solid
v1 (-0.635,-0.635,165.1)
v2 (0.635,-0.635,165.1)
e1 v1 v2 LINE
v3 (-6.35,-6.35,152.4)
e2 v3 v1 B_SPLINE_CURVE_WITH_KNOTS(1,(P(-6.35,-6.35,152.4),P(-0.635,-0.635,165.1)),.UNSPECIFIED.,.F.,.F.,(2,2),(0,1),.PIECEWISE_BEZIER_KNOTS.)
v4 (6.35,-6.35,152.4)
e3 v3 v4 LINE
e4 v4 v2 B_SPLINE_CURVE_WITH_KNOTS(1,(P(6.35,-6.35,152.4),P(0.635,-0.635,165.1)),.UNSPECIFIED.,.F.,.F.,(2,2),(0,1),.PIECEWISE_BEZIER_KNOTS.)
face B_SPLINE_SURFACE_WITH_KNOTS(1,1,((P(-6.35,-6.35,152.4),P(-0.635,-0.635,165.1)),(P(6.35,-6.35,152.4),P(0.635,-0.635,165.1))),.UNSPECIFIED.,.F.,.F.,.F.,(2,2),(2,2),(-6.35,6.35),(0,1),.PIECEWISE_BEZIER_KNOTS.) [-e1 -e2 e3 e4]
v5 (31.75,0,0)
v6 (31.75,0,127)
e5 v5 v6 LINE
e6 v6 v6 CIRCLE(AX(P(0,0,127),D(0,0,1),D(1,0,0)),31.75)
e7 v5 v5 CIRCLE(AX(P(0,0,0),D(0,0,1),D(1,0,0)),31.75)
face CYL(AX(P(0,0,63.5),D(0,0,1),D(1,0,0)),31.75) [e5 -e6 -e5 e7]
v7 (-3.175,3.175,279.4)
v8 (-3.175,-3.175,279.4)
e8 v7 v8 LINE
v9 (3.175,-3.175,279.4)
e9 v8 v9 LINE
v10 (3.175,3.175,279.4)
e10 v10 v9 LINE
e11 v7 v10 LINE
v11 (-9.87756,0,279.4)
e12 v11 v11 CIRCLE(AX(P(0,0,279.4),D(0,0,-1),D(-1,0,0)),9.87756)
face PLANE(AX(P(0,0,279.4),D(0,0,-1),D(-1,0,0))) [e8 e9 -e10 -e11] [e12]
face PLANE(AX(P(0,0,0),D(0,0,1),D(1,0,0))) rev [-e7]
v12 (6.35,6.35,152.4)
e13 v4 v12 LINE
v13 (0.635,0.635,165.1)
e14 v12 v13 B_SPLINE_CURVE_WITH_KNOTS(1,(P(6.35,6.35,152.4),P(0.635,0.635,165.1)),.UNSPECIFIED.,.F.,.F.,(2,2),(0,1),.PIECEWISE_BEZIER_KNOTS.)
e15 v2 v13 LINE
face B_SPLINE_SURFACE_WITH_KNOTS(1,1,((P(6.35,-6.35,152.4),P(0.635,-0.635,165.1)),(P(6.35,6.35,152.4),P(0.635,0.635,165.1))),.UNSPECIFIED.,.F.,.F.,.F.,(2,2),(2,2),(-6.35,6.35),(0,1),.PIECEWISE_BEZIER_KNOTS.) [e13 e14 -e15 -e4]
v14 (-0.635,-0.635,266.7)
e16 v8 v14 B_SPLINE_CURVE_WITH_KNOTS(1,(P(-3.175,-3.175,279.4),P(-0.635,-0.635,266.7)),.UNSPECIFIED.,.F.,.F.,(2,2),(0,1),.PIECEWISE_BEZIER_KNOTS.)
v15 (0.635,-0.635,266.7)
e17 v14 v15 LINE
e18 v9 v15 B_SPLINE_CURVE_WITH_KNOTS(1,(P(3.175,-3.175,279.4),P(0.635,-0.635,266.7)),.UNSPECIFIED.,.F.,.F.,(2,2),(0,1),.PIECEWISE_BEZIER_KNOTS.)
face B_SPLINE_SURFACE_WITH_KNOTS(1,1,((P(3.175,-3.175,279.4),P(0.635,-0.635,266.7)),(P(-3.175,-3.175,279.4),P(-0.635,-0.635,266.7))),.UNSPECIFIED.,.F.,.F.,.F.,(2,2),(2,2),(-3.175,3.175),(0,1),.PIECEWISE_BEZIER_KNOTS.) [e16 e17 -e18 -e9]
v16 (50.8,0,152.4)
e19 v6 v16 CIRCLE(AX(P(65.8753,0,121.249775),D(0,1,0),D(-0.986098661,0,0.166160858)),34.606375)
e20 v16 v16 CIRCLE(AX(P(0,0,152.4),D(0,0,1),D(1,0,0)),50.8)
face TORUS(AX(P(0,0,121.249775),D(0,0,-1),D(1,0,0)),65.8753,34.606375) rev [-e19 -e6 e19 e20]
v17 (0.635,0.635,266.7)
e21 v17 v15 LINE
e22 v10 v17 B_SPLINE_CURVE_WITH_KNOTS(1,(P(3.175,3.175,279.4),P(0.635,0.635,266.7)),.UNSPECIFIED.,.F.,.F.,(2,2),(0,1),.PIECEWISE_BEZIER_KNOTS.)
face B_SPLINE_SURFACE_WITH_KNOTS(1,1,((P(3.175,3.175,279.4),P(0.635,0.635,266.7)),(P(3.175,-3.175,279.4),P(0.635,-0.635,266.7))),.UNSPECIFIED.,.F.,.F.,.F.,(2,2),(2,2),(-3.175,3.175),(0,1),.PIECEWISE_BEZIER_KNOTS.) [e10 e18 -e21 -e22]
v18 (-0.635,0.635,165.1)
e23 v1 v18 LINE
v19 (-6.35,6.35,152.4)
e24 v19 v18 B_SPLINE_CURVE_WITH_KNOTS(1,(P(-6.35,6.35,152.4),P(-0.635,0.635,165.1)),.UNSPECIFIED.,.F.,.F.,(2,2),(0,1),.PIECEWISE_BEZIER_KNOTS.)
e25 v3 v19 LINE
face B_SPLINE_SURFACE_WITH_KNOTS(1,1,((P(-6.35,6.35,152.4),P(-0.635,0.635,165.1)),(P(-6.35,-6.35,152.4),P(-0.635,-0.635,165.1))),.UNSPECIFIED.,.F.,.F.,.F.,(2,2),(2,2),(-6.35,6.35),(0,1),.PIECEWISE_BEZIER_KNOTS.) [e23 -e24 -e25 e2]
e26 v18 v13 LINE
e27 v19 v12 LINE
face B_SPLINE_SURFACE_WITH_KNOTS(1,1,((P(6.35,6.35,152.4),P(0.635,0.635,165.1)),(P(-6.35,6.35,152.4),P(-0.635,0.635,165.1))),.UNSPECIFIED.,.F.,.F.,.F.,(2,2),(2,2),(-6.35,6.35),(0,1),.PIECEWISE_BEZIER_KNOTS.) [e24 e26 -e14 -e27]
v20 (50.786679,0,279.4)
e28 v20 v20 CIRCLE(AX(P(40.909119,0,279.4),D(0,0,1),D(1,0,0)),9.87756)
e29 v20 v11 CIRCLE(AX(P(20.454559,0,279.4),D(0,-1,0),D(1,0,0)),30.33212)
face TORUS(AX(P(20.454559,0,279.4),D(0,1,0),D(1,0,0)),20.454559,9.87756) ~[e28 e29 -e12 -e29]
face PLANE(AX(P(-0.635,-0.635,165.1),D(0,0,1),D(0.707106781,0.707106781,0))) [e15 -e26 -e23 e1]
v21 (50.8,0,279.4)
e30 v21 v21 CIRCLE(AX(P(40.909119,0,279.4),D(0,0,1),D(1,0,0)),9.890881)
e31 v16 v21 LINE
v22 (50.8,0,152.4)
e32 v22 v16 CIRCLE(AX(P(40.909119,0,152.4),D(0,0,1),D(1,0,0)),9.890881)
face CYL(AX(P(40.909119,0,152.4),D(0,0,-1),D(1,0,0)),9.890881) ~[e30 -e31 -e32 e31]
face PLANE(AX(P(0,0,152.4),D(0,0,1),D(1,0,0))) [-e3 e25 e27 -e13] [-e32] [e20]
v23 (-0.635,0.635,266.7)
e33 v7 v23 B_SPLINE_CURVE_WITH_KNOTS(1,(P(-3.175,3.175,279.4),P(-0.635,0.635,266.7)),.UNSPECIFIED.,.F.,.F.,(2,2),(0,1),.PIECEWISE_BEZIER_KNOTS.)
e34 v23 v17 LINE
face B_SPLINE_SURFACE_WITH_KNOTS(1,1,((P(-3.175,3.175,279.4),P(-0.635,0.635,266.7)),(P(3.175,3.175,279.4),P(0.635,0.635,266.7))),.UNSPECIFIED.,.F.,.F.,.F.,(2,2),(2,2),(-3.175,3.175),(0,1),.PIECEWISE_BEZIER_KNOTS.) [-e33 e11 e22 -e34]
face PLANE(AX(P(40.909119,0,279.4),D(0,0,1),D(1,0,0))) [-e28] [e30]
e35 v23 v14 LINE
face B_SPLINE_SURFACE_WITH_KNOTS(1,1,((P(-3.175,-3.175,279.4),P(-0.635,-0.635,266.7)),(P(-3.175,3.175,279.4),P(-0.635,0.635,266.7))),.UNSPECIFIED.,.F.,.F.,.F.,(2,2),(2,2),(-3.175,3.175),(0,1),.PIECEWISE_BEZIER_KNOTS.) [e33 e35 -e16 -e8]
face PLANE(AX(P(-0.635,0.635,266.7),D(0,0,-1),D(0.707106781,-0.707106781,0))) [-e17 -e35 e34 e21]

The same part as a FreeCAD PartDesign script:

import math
import FreeCAD as App
import Part
import Sketcher

V = App.Vector
Q = App.Units.Quantity

doc = App.newDocument("Part")
body = doc.addObject("PartDesign::Body", "Body")

# Sketch on XZ plane
sketch1 = body.newObject("Sketcher::SketchObject", "Sketch")
sketch1.AttachmentSupport = (doc.getObject("XZ_Plane"), [""])
sketch1.MapMode = "FlatFace"
sketch1.addGeometry(Part.LineSegment(V(0, 152.4, 0), V(0, 0, 0)), False)
sketch1.addGeometry(Part.LineSegment(V(0, 0, 0), V(31.75, 0, 0)), False)
sketch1.addGeometry(Part.LineSegment(V(31.75, 0, 0), V(31.75, 127, 0)), False)
sketch1.addGeometry(Part.ArcOfCircle(Part.Circle(V(65.8753, 121.249775, 0), V(0, 0, 1), 34.606375), math.radians(115.824882), math.radians(170.435322)), False)
sketch1.addGeometry(Part.LineSegment(V(50.8, 152.4, 0), V(0, 152.4, 0)), False)
sketch1.addConstraint(Sketcher.Constraint("Coincident", 0, 2, 1, 1))
sketch1.addConstraint(Sketcher.Constraint("Coincident", 1, 2, 2, 1))
sketch1.addConstraint(Sketcher.Constraint("Coincident", 2, 2, 3, 2))
sketch1.addConstraint(Sketcher.Constraint("Coincident", 3, 1, 4, 1))
sketch1.addConstraint(Sketcher.Constraint("Coincident", 4, 2, 0, 1))
sketch1.addConstraint(Sketcher.Constraint("Vertical", 0))
sketch1.addConstraint(Sketcher.Constraint("Horizontal", 1))
sketch1.addConstraint(Sketcher.Constraint("Vertical", 2))
sketch1.addConstraint(Sketcher.Constraint("Horizontal", 4))
sketch1.addConstraint(Sketcher.Constraint("Coincident", 0, 2, -1, 1))
sketch1.addConstraint(Sketcher.Constraint("DistanceX", 4, 2, 4, 1, Q("2 in")))
sketch1.addConstraint(Sketcher.Constraint("DistanceY", 0, 2, 0, 1, Q("6 in")))
sketch1.addConstraint(Sketcher.Constraint("DistanceY", 2, 1, 2, 2, Q("5 in")))
sketch1.addConstraint(Sketcher.Constraint("DistanceX", 1, 1, 1, 2, Q("1.25 in")))
sketch1.addConstraint(Sketcher.Constraint("Radius", 3, 34.606375))
revolution = body.newObject("PartDesign::Revolution", "Revolution")
revolution.Profile = sketch1
revolution.ReferenceAxis = (sketch1, ["V_Axis"])
revolution.Angle = 360

# Sketch on XY plane
sketch2 = body.newObject("Sketcher::SketchObject", "Sketch001")
sketch2.AttachmentSupport = (doc.getObject("XY_Plane"), [""])
sketch2.MapMode = "FlatFace"
sketch2.AttachmentOffset = App.Placement(V(0, 0, 6 * 25.4), App.Rotation())
sketch2.addGeometry(Part.Circle(V(40.909119, 0, 0), V(0, 0, 1), 9.890881), False)
sketch2.addConstraint(Sketcher.Constraint("PointOnObject", 0, 3, -1))
sketch2.addConstraint(Sketcher.Constraint("Diameter", 0, 19.781762))
sketch2.addConstraint(Sketcher.Constraint("DistanceX", -1, 1, 0, 3, 40.909119))
pad1 = body.newObject("PartDesign::Pad", "Pad")
pad1.Profile = sketch2
pad1.Length = Q("5 in")

# Sketch on XY plane
sketch3 = body.newObject("Sketcher::SketchObject", "Sketch002")
sketch3.AttachmentSupport = (doc.getObject("XY_Plane"), [""])
sketch3.MapMode = "FlatFace"
sketch3.AttachmentOffset = App.Placement(V(0, 0, 6 * 25.4), App.Rotation())
sketch3.addGeometry(Part.LineSegment(V(-6.35, 6.35, 0), V(-6.35, -6.35, 0)), False)
sketch3.addGeometry(Part.LineSegment(V(-6.35, -6.35, 0), V(6.35, -6.35, 0)), False)
sketch3.addGeometry(Part.LineSegment(V(6.35, -6.35, 0), V(6.35, 6.35, 0)), False)
sketch3.addGeometry(Part.LineSegment(V(6.35, 6.35, 0), V(-6.35, 6.35, 0)), False)
sketch3.addConstraint(Sketcher.Constraint("Coincident", 0, 2, 1, 1))
sketch3.addConstraint(Sketcher.Constraint("Coincident", 1, 2, 2, 1))
sketch3.addConstraint(Sketcher.Constraint("Coincident", 2, 2, 3, 1))
sketch3.addConstraint(Sketcher.Constraint("Coincident", 3, 2, 0, 1))
sketch3.addConstraint(Sketcher.Constraint("Vertical", 0))
sketch3.addConstraint(Sketcher.Constraint("Horizontal", 1))
sketch3.addConstraint(Sketcher.Constraint("Vertical", 2))
sketch3.addConstraint(Sketcher.Constraint("Horizontal", 3))
sketch3.addConstraint(Sketcher.Constraint("Symmetric", 0, 2, 2, 2, -1, 1))
sketch3.addConstraint(Sketcher.Constraint("Equal", 3, 0))
sketch3.addConstraint(Sketcher.Constraint("DistanceX", 1, 1, 1, 2, Q("0.5 in")))

# Sketch on XY plane
sketch4 = body.newObject("Sketcher::SketchObject", "Sketch003")
sketch4.AttachmentSupport = (doc.getObject("XY_Plane"), [""])
sketch4.MapMode = "FlatFace"
sketch4.AttachmentOffset = App.Placement(V(0, 0, 6.5 * 25.4), App.Rotation())
sketch4.addGeometry(Part.LineSegment(V(-0.635, 0.635, 0), V(-0.635, -0.635, 0)), False)
sketch4.addGeometry(Part.LineSegment(V(-0.635, -0.635, 0), V(0.635, -0.635, 0)), False)
sketch4.addGeometry(Part.LineSegment(V(0.635, -0.635, 0), V(0.635, 0.635, 0)), False)
sketch4.addGeometry(Part.LineSegment(V(0.635, 0.635, 0), V(-0.635, 0.635, 0)), False)
sketch4.addConstraint(Sketcher.Constraint("Coincident", 0, 2, 1, 1))
sketch4.addConstraint(Sketcher.Constraint("Coincident", 1, 2, 2, 1))
sketch4.addConstraint(Sketcher.Constraint("Coincident", 2, 2, 3, 1))
sketch4.addConstraint(Sketcher.Constraint("Coincident", 3, 2, 0, 1))
sketch4.addConstraint(Sketcher.Constraint("Vertical", 0))
sketch4.addConstraint(Sketcher.Constraint("Horizontal", 1))
sketch4.addConstraint(Sketcher.Constraint("Vertical", 2))
sketch4.addConstraint(Sketcher.Constraint("Horizontal", 3))
sketch4.addConstraint(Sketcher.Constraint("Symmetric", 0, 2, 2, 2, -1, 1))
sketch4.addConstraint(Sketcher.Constraint("Equal", 3, 0))
sketch4.addConstraint(Sketcher.Constraint("DistanceX", 1, 1, 1, 2, Q("0.05 in")))

additiveloft = body.newObject("PartDesign::AdditiveLoft", "AdditiveLoft")
additiveloft.Profile = sketch3
additiveloft.Sections = [sketch4]

# Sketch on XY plane
sketch5 = body.newObject("Sketcher::SketchObject", "Sketch004")
sketch5.AttachmentSupport = (doc.getObject("XY_Plane"), [""])
sketch5.MapMode = "FlatFace"
sketch5.AttachmentOffset = App.Placement(V(0, 0, 11 * 25.4), App.Rotation())
sketch5.addGeometry(Part.Circle(V(40.909119, 0, 0), V(0, 0, 1), 9.87756), False)
sketch5.addGeometry(Part.LineSegment(V(20.454559, 0, 0), V(20.454559, -10, 0)), True)  # axis
sketch5.addConstraint(Sketcher.Constraint("Vertical", 1))
sketch5.addConstraint(Sketcher.Constraint("PointOnObject", 0, 3, -1))
sketch5.addConstraint(Sketcher.Constraint("PointOnObject", 1, 1, -1))
sketch5.addConstraint(Sketcher.Constraint("Diameter", 0, 19.755121))
sketch5.addConstraint(Sketcher.Constraint("DistanceY", 1, 2, 1, 1, 10.0))
sketch5.addConstraint(Sketcher.Constraint("DistanceX", -1, 1, 0, 3, 40.909119))
sketch5.addConstraint(Sketcher.Constraint("DistanceX", -1, 1, 1, 1, 20.454559))
revolution2 = body.newObject("PartDesign::Revolution", "Revolution001")
revolution2.Profile = sketch5
revolution2.ReferenceAxis = (sketch5, ["Axis0"])
revolution2.Angle = 180

# Sketch on XY plane
sketch6 = body.newObject("Sketcher::SketchObject", "Sketch005")
sketch6.AttachmentSupport = (doc.getObject("XY_Plane"), [""])
sketch6.MapMode = "FlatFace"
sketch6.AttachmentOffset = App.Placement(V(0, 0, 11 * 25.4), App.Rotation())
sketch6.addGeometry(Part.LineSegment(V(-3.175, -3.175, 0), V(-3.175, 3.175, 0)), False)
sketch6.addGeometry(Part.LineSegment(V(-3.175, 3.175, 0), V(3.175, 3.175, 0)), False)
sketch6.addGeometry(Part.LineSegment(V(3.175, 3.175, 0), V(3.175, -3.175, 0)), False)
sketch6.addGeometry(Part.LineSegment(V(3.175, -3.175, 0), V(-3.175, -3.175, 0)), False)
sketch6.addConstraint(Sketcher.Constraint("Coincident", 0, 2, 1, 1))
sketch6.addConstraint(Sketcher.Constraint("Coincident", 1, 2, 2, 1))
sketch6.addConstraint(Sketcher.Constraint("Coincident", 2, 2, 3, 1))
sketch6.addConstraint(Sketcher.Constraint("Coincident", 3, 2, 0, 1))
sketch6.addConstraint(Sketcher.Constraint("Vertical", 0))
sketch6.addConstraint(Sketcher.Constraint("Horizontal", 1))
sketch6.addConstraint(Sketcher.Constraint("Vertical", 2))
sketch6.addConstraint(Sketcher.Constraint("Horizontal", 3))
sketch6.addConstraint(Sketcher.Constraint("Symmetric", 0, 2, 2, 2, -1, 1))
sketch6.addConstraint(Sketcher.Constraint("Equal", 3, 0))
sketch6.addConstraint(Sketcher.Constraint("DistanceX", 1, 1, 1, 2, Q("0.25 in")))

# Sketch on XY plane
sketch7 = body.newObject("Sketcher::SketchObject", "Sketch006")
sketch7.AttachmentSupport = (doc.getObject("XY_Plane"), [""])
sketch7.MapMode = "FlatFace"
sketch7.AttachmentOffset = App.Placement(V(0, 0, 10.5 * 25.4), App.Rotation())
sketch7.addGeometry(Part.LineSegment(V(-0.635, -0.635, 0), V(-0.635, 0.635, 0)), False)
sketch7.addGeometry(Part.LineSegment(V(-0.635, 0.635, 0), V(0.635, 0.635, 0)), False)
sketch7.addGeometry(Part.LineSegment(V(0.635, 0.635, 0), V(0.635, -0.635, 0)), False)
sketch7.addGeometry(Part.LineSegment(V(0.635, -0.635, 0), V(-0.635, -0.635, 0)), False)
sketch7.addConstraint(Sketcher.Constraint("Coincident", 0, 2, 1, 1))
sketch7.addConstraint(Sketcher.Constraint("Coincident", 1, 2, 2, 1))
sketch7.addConstraint(Sketcher.Constraint("Coincident", 2, 2, 3, 1))
sketch7.addConstraint(Sketcher.Constraint("Coincident", 3, 2, 0, 1))
sketch7.addConstraint(Sketcher.Constraint("Vertical", 0))
sketch7.addConstraint(Sketcher.Constraint("Horizontal", 1))
sketch7.addConstraint(Sketcher.Constraint("Vertical", 2))
sketch7.addConstraint(Sketcher.Constraint("Horizontal", 3))
sketch7.addConstraint(Sketcher.Constraint("Symmetric", 0, 2, 2, 2, -1, 1))
sketch7.addConstraint(Sketcher.Constraint("Equal", 3, 0))
sketch7.addConstraint(Sketcher.Constraint("DistanceX", 1, 1, 1, 2, Q("0.05 in")))

additiveloft2 = body.newObject("PartDesign::AdditiveLoft", "AdditiveLoft001")
additiveloft2.Profile = sketch6
additiveloft2.Sections = [sketch7]

doc.recompute()
